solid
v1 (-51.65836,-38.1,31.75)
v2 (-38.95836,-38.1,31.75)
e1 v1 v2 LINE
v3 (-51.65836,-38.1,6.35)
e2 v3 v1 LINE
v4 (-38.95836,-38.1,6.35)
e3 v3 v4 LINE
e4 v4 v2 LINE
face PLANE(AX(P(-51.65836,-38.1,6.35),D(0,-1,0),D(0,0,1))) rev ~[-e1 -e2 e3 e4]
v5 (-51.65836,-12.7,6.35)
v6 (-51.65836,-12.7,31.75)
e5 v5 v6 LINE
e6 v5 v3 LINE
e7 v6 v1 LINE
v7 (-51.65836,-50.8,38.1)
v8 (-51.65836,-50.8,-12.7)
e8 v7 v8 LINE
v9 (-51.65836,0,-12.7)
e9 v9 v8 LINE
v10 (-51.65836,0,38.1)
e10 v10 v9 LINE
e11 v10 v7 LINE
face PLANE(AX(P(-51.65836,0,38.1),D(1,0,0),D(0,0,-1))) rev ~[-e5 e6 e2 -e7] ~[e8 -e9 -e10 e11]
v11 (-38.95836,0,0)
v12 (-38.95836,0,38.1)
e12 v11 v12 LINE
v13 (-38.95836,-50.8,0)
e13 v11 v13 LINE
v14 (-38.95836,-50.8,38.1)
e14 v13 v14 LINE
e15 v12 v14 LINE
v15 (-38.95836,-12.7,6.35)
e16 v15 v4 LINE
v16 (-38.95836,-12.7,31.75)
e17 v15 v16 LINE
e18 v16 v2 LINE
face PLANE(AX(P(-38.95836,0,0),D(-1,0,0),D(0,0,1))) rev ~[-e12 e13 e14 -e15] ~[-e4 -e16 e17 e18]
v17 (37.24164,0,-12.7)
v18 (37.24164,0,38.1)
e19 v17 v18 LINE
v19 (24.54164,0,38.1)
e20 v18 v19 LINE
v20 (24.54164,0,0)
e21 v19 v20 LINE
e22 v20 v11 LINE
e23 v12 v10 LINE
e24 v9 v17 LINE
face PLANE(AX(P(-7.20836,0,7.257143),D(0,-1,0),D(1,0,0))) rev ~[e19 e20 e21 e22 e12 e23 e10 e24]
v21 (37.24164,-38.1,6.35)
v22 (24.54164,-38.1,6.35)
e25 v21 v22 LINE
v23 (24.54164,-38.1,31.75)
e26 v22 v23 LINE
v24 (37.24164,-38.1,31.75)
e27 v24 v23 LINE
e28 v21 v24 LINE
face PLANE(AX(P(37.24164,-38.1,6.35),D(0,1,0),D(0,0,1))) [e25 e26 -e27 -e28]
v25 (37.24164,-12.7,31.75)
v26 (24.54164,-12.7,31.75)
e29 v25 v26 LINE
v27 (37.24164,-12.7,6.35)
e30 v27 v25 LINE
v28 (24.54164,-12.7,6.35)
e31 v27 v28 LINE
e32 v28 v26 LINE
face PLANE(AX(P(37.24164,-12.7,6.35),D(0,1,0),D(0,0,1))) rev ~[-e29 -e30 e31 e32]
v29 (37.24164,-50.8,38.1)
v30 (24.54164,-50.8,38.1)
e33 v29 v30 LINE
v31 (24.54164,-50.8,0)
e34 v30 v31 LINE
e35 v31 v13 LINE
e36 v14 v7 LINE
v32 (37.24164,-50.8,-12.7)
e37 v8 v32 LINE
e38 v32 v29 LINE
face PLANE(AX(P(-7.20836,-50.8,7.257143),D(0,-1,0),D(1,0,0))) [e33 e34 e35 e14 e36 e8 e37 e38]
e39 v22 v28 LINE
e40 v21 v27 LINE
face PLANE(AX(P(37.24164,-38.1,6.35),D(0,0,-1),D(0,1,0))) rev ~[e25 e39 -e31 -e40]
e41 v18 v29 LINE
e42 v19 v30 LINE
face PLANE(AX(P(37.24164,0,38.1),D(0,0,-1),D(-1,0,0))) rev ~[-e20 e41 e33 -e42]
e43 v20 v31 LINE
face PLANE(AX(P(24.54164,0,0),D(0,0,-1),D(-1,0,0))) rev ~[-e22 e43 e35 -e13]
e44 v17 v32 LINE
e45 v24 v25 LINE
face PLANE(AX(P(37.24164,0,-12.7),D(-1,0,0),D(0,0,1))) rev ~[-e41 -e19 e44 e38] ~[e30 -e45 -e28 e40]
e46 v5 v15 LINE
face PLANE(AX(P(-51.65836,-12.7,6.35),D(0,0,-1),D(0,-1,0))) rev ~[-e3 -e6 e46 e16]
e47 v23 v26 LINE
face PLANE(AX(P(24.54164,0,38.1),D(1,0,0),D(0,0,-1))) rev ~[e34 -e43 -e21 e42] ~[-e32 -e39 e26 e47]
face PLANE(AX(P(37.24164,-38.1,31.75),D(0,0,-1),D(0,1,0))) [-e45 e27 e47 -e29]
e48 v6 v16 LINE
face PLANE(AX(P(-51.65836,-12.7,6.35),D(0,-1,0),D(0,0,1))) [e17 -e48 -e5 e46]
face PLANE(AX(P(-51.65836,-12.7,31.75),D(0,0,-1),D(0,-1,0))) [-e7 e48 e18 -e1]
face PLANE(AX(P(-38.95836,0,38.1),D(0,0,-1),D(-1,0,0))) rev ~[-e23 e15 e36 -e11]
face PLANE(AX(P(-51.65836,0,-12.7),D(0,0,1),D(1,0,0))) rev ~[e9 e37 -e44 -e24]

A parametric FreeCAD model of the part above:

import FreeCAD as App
import Part
import Sketcher

V = App.Vector
Q = App.Units.Quantity

doc = App.newDocument("Part")
body = doc.addObject("PartDesign::Body", "Body")

# Sketch on XZ plane
sketch1 = doc.addObject("Sketcher::SketchObject", "Sketch")
body.addObject(sketch1)
sketch1.AttachmentSupport = (doc.XZ_Plane, [""])
sketch1.MapMode = "FlatFace"
sketch1.addGeometry([
    Part.LineSegment(V(-39, 38, 0), V(-52, 38, 0)),  # 0
    Part.LineSegment(V(-52, 38, 0), V(-52, -13, 0)),  # 1
    Part.LineSegment(V(-52, -13, 0), V(37, -13, 0)),  # 2
    Part.LineSegment(V(37, -13, 0), V(37, 38, 0)),  # 3
    Part.LineSegment(V(37, 38, 0), V(25, 38, 0)),  # 4
    Part.LineSegment(V(25, 38, 0), V(25, 0, 0)),  # 5
    Part.LineSegment(V(25, 0, 0), V(-39, 0, 0)),  # 6
    Part.LineSegment(V(-39, 0, 0), V(-39, 38, 0)),  # 7
], False)
sketch1.addConstraint([
    Sketcher.Constraint("Coincident", 0, 2, 1, 1),
    Sketcher.Constraint("Coincident", 1, 2, 2, 1),
    Sketcher.Constraint("Coincident", 2, 2, 3, 1),
    Sketcher.Constraint("Coincident", 3, 2, 4, 1),
    Sketcher.Constraint("Coincident", 4, 2, 5, 1),
    Sketcher.Constraint("Coincident", 5, 2, 6, 1),
    Sketcher.Constraint("Coincident", 6, 2, 7, 1),
    Sketcher.Constraint("Coincident", 7, 2, 0, 1),
    Sketcher.Constraint("Horizontal", 0),
    Sketcher.Constraint("Vertical", 1),
    Sketcher.Constraint("Horizontal", 2),
    Sketcher.Constraint("Vertical", 3),
    Sketcher.Constraint("Horizontal", 4),
    Sketcher.Constraint("Vertical", 5),
    Sketcher.Constraint("Horizontal", 6),
    Sketcher.Constraint("Vertical", 7),
    Sketcher.Constraint("PointOnObject", 5, 2, -1),
    Sketcher.Constraint("Horizontal", 0, 2, 3, 2),
    Sketcher.Constraint("Equal", 0, 4),
    Sketcher.Constraint("DistanceY", 1, 2, 1, 1, Q("2 in")),
    Sketcher.Constraint("DistanceX", 0, 2, 0, 1, Q("0.5 in")),
    Sketcher.Constraint("DistanceX", 2, 1, 2, 2, Q("3.5 in")),
    Sketcher.Constraint("DistanceY", 5, 2, 5, 1, Q("1.5 in")),
    Sketcher.Constraint("DistanceX", 0, 2, -1, 1, Q("51.65836 mm")),
])
pad1 = doc.addObject("PartDesign::Pad", "Pad")
body.addObject(pad1)
pad1.Profile = sketch1
pad1.Length = Q("2 in")

# Sketch on YZ plane
sketch2 = doc.addObject("Sketcher::SketchObject", "Sketch001")
body.addObject(sketch2)
sketch2.AttachmentSupport = (doc.YZ_Plane, [""])
sketch2.MapMode = "FlatFace"
sketch2.AttachmentOffset = App.Placement(V(0, 0, 37.24164), App.Rotation())
sketch2.addGeometry([
    Part.LineSegment(V(-38, 32, 0), V(-38, 6, 0)),
    Part.LineSegment(V(-38, 6, 0), V(-13, 6, 0)),
    Part.LineSegment(V(-13, 6, 0), V(-13, 32, 0)),
    Part.LineSegment(V(-13, 32, 0), V(-38, 32, 0)),
], False)
sketch2.addConstraint([
    Sketcher.Constraint("Coincident", 0, 2, 1, 1),
    Sketcher.Constraint("Coincident", 1, 2, 2, 1),
    Sketcher.Constraint("Coincident", 2, 2, 3, 1),
    Sketcher.Constraint("Coincident", 3, 2, 0, 1),
    Sketcher.Constraint("Vertical", 0),
    Sketcher.Constraint("Horizontal", 1),
    Sketcher.Constraint("Vertical", 2),
    Sketcher.Constraint("Horizontal", 3),
    Sketcher.Constraint("Equal", 3, 0),
    Sketcher.Constraint("DistanceX", 1, 1, 1, 2, Q("1 in")),
    Sketcher.Constraint("DistanceX", 0, 2, -1, 1, Q("1.5 in")),
    Sketcher.Constraint("DistanceY", -1, 1, 0, 2, Q("0.25 in")),
])
pocket1 = doc.addObject("PartDesign::Pocket", "Pocket")
body.addObject(pocket1)
pocket1.Profile = sketch2
pocket1.Length = Q("1 in")

# Sketch on YZ plane
sketch3 = doc.addObject("Sketcher::SketchObject", "Sketch002")
body.addObject(sketch3)
sketch3.AttachmentSupport = (doc.YZ_Plane, [""])
sketch3.MapMode = "FlatFace"
sketch3.AttachmentOffset = App.Placement(V(0, 0, -51.65836), App.Rotation())
sketch3.addGeometry([
    Part.LineSegment(V(-13, 32, 0), V(-13, 6, 0)),
    Part.LineSegment(V(-13, 6, 0), V(-38, 6, 0)),
    Part.LineSegment(V(-38, 6, 0), V(-38, 32, 0)),
    Part.LineSegment(V(-38, 32, 0), V(-13, 32, 0)),
], False)
sketch3.addConstraint([
    Sketcher.Constraint("Coincident", 0, 2, 1, 1),
    Sketcher.Constraint("Coincident", 1, 2, 2, 1),
    Sketcher.Constraint("Coincident", 2, 2, 3, 1),
    Sketcher.Constraint("Coincident", 3, 2, 0, 1),
    Sketcher.Constraint("Vertical", 0),
    Sketcher.Constraint("Horizontal", 1),
    Sketcher.Constraint("Vertical", 2),
    Sketcher.Constraint("Horizontal", 3),
    Sketcher.Constraint("Equal", 3, 0),
    Sketcher.Constraint("DistanceX", 1, 2, 1, 1, Q("1 in")),
    Sketcher.Constraint("DistanceX", 0, 2, -1, 1, Q("0.5 in")),
    Sketcher.Constraint("DistanceY", -1, 1, 0, 2, Q("0.25 in")),
])
pocket2 = doc.addObject("PartDesign::Pocket", "Pocket001")
body.addObject(pocket2)
pocket2.Profile = sketch3
pocket2.Length = Q("1 in")
pocket2.Reversed = True

doc.recompute()
